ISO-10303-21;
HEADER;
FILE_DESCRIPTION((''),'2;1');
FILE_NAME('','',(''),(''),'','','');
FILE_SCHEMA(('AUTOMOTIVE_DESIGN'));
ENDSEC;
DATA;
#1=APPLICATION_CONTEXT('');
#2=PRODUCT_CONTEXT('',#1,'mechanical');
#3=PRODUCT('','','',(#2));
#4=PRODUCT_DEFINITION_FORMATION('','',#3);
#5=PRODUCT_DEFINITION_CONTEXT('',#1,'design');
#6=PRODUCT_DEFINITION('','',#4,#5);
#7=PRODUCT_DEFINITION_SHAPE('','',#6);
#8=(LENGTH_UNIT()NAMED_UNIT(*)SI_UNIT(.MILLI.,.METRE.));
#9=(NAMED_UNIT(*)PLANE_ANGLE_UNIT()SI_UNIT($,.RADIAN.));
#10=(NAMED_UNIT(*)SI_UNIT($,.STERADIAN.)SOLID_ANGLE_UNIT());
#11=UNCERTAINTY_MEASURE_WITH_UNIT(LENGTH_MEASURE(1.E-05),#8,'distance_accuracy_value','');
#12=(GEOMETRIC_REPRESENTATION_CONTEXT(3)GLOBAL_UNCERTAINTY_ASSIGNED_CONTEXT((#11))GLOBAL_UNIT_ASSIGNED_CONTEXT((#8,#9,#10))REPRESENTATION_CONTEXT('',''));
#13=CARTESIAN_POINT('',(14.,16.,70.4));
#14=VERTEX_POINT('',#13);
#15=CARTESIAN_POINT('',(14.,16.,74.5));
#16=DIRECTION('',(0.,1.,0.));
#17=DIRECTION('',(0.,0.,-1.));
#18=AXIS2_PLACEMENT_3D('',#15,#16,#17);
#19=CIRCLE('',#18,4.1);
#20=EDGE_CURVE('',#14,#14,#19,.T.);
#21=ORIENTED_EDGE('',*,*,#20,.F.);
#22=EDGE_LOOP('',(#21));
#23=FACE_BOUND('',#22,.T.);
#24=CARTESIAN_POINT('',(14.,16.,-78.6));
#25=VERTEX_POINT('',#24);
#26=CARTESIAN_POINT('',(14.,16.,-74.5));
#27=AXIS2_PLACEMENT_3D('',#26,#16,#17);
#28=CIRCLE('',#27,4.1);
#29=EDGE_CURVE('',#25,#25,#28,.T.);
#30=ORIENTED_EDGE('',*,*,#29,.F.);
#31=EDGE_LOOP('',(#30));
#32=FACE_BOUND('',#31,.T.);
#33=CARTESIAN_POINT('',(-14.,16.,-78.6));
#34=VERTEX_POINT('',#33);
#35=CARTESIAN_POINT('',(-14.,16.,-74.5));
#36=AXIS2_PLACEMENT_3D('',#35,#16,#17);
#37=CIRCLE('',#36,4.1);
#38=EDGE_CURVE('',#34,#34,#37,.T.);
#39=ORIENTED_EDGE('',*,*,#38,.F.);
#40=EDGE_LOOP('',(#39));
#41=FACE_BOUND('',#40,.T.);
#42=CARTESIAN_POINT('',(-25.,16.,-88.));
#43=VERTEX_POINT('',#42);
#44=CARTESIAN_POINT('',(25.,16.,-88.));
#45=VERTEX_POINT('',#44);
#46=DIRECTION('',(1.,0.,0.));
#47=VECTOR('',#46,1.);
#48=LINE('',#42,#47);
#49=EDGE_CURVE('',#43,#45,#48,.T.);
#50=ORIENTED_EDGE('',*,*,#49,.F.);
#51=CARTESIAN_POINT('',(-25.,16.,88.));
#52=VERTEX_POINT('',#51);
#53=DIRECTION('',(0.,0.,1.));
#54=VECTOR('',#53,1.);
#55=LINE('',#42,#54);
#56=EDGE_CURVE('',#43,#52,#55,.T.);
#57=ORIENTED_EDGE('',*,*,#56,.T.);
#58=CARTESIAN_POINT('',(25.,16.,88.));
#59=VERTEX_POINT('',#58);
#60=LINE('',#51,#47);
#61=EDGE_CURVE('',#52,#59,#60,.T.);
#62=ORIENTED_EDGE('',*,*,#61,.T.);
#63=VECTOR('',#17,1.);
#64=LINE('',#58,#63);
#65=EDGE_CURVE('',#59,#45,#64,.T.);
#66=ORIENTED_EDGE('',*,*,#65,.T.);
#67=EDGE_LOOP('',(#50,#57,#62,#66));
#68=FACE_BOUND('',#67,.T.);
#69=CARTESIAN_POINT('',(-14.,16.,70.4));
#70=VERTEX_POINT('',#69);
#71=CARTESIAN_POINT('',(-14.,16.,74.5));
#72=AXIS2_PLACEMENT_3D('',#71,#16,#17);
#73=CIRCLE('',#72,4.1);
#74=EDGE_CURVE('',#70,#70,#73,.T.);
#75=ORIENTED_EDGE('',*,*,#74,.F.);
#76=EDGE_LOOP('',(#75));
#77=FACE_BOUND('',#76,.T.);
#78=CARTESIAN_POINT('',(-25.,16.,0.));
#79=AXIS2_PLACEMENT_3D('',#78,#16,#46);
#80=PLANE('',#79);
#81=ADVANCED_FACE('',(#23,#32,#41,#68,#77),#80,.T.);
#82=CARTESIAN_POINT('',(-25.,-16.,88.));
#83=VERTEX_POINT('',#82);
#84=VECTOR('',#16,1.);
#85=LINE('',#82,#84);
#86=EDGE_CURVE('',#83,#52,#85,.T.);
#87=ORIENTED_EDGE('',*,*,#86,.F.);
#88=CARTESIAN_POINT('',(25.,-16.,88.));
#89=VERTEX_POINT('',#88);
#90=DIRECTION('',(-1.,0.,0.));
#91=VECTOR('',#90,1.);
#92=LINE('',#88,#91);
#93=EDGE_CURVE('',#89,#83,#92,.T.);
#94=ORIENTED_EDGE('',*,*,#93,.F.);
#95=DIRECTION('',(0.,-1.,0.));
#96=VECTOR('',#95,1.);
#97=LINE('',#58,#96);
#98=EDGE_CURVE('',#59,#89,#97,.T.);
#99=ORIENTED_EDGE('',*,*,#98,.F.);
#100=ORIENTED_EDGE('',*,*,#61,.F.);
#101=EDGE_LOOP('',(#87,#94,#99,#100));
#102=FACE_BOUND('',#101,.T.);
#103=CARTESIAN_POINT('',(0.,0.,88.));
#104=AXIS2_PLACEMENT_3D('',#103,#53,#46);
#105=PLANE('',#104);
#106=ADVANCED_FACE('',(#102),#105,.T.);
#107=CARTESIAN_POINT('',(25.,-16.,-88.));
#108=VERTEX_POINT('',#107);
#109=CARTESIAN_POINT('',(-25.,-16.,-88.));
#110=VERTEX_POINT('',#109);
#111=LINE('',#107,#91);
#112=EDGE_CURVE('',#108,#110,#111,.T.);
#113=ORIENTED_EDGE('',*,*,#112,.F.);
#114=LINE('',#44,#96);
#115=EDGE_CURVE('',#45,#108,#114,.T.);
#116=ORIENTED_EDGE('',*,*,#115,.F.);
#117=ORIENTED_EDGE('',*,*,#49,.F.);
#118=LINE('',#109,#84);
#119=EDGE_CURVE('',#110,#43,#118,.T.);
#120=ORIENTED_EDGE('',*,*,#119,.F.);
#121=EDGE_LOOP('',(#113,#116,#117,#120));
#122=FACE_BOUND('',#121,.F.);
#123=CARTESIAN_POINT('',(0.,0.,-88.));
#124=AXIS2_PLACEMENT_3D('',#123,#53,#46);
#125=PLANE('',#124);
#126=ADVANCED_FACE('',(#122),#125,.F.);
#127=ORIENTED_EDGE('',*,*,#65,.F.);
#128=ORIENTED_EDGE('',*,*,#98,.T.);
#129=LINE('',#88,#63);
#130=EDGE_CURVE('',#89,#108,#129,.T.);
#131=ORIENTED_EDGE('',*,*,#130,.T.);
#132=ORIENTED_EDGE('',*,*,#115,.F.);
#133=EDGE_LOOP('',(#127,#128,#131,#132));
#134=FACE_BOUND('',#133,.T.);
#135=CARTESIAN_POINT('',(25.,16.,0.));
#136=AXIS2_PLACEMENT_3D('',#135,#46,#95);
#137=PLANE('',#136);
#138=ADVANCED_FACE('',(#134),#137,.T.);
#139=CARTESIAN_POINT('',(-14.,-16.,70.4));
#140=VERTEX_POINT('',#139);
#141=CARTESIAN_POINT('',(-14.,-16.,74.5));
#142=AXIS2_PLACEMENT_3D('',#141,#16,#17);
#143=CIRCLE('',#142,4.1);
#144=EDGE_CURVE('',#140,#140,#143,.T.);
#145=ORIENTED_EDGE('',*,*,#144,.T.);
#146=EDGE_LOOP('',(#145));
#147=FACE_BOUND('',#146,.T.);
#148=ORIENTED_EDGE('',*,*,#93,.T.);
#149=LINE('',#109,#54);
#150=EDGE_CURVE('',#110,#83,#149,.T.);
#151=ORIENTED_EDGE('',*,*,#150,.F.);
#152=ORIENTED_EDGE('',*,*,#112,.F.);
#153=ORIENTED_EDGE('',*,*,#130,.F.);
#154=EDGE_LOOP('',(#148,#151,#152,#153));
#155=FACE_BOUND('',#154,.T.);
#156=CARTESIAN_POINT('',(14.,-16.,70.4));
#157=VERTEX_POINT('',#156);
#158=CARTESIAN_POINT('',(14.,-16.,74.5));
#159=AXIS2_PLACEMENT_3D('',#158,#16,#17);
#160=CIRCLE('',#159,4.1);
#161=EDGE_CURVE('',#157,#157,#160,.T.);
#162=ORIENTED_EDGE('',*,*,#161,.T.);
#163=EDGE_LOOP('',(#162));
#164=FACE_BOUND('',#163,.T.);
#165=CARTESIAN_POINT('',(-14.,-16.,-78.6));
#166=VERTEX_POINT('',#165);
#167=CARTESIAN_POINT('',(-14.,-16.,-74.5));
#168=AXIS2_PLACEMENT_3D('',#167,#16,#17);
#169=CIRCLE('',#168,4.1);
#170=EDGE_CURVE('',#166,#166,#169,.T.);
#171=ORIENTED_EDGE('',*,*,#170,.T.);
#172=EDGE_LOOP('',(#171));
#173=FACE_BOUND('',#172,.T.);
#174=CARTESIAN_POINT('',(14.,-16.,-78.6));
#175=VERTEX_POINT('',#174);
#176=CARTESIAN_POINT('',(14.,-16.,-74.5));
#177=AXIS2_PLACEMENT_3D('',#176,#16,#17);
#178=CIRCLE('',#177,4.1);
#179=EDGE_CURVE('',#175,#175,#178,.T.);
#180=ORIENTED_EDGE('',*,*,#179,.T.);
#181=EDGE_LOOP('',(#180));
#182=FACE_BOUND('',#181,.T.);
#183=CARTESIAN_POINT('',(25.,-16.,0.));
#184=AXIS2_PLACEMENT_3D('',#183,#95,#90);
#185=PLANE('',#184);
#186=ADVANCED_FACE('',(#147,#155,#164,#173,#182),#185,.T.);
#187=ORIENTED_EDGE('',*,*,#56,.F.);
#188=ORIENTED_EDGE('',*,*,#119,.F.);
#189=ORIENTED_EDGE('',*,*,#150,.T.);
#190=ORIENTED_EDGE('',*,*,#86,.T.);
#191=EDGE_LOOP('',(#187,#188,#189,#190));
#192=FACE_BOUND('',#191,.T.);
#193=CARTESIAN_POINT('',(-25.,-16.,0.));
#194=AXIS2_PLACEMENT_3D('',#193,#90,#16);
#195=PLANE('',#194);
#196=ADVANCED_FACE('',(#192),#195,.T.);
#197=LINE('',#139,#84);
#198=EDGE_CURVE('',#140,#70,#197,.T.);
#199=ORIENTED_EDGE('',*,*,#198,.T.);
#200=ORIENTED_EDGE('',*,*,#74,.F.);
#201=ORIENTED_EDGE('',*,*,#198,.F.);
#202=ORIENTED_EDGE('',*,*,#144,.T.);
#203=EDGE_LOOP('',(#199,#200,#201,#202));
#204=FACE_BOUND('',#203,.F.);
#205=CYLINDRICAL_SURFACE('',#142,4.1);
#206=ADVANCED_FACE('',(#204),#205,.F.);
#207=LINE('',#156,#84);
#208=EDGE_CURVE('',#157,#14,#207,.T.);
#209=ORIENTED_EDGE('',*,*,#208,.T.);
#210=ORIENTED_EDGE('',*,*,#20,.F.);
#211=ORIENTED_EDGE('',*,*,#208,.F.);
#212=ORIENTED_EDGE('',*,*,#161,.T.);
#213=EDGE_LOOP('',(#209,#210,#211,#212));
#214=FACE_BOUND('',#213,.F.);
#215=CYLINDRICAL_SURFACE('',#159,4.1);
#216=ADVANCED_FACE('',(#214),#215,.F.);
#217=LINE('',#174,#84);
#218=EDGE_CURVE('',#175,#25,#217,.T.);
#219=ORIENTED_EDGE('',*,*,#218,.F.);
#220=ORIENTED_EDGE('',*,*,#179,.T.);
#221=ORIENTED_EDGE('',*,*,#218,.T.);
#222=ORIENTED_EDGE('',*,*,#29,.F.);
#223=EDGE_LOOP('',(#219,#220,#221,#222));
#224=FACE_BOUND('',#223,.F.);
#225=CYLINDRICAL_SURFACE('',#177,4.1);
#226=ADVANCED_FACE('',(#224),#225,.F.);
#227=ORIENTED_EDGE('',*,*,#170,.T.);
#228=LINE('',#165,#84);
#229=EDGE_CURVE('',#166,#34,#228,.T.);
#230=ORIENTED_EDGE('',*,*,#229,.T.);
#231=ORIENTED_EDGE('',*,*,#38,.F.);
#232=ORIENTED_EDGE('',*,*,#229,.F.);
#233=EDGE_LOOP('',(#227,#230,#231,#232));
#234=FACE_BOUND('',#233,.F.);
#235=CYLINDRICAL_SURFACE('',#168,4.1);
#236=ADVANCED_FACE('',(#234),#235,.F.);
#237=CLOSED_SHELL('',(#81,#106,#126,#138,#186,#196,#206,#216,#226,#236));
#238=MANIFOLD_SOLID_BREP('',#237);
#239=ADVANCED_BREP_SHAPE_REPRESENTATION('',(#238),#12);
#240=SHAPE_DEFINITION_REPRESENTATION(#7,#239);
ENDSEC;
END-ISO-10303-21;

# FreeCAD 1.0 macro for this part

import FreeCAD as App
import Part
import Sketcher

V = App.Vector


def add_polygon(sketch, points):
    """Adds a closed chain of lines whose ends are joined by coincident constraints."""
    first, n = sketch.GeometryCount, len(points)
    for a, b in zip(points, points[1:] + points[:1]):
        sketch.addGeometry(Part.LineSegment(App.Vector(*a, 0), App.Vector(*b, 0)), False)
    for i in range(n):
        sketch.addConstraint(Sketcher.Constraint("Coincident", first + i, 2, first + (i + 1) % n, 1))

doc = App.newDocument("Part")
body = doc.addObject("PartDesign::Body", "Body")

# Sketch on XY plane
sketch1 = doc.addObject("Sketcher::SketchObject", "Sketch")
body.addObject(sketch1)
sketch1.AttachmentSupport = (doc.XY_Plane, [""])
sketch1.MapMode = "FlatFace"
add_polygon(sketch1, [(25, 16), (-25, 16), (-25, -16), (25, -16)])  # lines 0-3
sketch1.addConstraint(Sketcher.Constraint("Horizontal", 0))
sketch1.addConstraint(Sketcher.Constraint("Vertical", 1))
sketch1.addConstraint(Sketcher.Constraint("Horizontal", 2))
sketch1.addConstraint(Sketcher.Constraint("Vertical", 3))
sketch1.addConstraint(Sketcher.Constraint("Symmetric", 0, 2, 2, 2, -1, 1))
sketch1.addConstraint(Sketcher.Constraint("DistanceX", 0, 2, 0, 1, 50.0))
sketch1.addConstraint(Sketcher.Constraint("DistanceY", 1, 2, 1, 1, 32.0))
pad1 = doc.addObject("PartDesign::Pad", "Pad")
body.addObject(pad1)
pad1.Profile = sketch1
pad1.Length = 176
pad1.Midplane = True

# Sketch on XZ plane
sketch2 = doc.addObject("Sketcher::SketchObject", "Sketch001")
body.addObject(sketch2)
sketch2.AttachmentSupport = (doc.XZ_Plane, [""])
sketch2.MapMode = "FlatFace"
sketch2.AttachmentOffset = App.Placement(V(0, 0, 16), App.Rotation())
sketch2.addGeometry(Part.Circle(V(14, 74.5, 0), V(0, 0, 1), 4.1), False)
sketch2.addGeometry(Part.Circle(V(-14, 74.5, 0), V(0, 0, 1), 4.1), False)
sketch2.addGeometry(Part.Circle(V(14, -74.5, 0), V(0, 0, 1), 4.1), False)
sketch2.addGeometry(Part.Circle(V(-14, -74.5, 0), V(0, 0, 1), 4.1), False)
sketch2.addConstraint(Sketcher.Constraint("Equal", 0, 1))
sketch2.addConstraint(Sketcher.Constraint("Equal", 1, 2))
sketch2.addConstraint(Sketcher.Constraint("Equal", 2, 3))
sketch2.addConstraint(Sketcher.Constraint("Symmetric", 1, 3, 2, 3, -1, 1))
sketch2.addConstraint(Sketcher.Constraint("Symmetric", 0, 3, 3, 3, -1, 1))
sketch2.addConstraint(Sketcher.Constraint("Symmetric", 0, 3, 1, 3, -2))
sketch2.addConstraint(Sketcher.Constraint("Diameter", 0, 8.2))
sketch2.addConstraint(Sketcher.Constraint("DistanceX", -1, 1, 0, 3, 14.0))
sketch2.addConstraint(Sketcher.Constraint("DistanceY", 2, 3, 0, 3, 149.0))
doc.recompute()
hole = doc.addObject("PartDesign::Hole", "Hole")
body.addObject(hole)
hole.Profile = sketch2
hole.ThreadType = "None"
hole.Diameter = 8.2
hole.DepthType = "ThroughAll"

doc.recompute()
